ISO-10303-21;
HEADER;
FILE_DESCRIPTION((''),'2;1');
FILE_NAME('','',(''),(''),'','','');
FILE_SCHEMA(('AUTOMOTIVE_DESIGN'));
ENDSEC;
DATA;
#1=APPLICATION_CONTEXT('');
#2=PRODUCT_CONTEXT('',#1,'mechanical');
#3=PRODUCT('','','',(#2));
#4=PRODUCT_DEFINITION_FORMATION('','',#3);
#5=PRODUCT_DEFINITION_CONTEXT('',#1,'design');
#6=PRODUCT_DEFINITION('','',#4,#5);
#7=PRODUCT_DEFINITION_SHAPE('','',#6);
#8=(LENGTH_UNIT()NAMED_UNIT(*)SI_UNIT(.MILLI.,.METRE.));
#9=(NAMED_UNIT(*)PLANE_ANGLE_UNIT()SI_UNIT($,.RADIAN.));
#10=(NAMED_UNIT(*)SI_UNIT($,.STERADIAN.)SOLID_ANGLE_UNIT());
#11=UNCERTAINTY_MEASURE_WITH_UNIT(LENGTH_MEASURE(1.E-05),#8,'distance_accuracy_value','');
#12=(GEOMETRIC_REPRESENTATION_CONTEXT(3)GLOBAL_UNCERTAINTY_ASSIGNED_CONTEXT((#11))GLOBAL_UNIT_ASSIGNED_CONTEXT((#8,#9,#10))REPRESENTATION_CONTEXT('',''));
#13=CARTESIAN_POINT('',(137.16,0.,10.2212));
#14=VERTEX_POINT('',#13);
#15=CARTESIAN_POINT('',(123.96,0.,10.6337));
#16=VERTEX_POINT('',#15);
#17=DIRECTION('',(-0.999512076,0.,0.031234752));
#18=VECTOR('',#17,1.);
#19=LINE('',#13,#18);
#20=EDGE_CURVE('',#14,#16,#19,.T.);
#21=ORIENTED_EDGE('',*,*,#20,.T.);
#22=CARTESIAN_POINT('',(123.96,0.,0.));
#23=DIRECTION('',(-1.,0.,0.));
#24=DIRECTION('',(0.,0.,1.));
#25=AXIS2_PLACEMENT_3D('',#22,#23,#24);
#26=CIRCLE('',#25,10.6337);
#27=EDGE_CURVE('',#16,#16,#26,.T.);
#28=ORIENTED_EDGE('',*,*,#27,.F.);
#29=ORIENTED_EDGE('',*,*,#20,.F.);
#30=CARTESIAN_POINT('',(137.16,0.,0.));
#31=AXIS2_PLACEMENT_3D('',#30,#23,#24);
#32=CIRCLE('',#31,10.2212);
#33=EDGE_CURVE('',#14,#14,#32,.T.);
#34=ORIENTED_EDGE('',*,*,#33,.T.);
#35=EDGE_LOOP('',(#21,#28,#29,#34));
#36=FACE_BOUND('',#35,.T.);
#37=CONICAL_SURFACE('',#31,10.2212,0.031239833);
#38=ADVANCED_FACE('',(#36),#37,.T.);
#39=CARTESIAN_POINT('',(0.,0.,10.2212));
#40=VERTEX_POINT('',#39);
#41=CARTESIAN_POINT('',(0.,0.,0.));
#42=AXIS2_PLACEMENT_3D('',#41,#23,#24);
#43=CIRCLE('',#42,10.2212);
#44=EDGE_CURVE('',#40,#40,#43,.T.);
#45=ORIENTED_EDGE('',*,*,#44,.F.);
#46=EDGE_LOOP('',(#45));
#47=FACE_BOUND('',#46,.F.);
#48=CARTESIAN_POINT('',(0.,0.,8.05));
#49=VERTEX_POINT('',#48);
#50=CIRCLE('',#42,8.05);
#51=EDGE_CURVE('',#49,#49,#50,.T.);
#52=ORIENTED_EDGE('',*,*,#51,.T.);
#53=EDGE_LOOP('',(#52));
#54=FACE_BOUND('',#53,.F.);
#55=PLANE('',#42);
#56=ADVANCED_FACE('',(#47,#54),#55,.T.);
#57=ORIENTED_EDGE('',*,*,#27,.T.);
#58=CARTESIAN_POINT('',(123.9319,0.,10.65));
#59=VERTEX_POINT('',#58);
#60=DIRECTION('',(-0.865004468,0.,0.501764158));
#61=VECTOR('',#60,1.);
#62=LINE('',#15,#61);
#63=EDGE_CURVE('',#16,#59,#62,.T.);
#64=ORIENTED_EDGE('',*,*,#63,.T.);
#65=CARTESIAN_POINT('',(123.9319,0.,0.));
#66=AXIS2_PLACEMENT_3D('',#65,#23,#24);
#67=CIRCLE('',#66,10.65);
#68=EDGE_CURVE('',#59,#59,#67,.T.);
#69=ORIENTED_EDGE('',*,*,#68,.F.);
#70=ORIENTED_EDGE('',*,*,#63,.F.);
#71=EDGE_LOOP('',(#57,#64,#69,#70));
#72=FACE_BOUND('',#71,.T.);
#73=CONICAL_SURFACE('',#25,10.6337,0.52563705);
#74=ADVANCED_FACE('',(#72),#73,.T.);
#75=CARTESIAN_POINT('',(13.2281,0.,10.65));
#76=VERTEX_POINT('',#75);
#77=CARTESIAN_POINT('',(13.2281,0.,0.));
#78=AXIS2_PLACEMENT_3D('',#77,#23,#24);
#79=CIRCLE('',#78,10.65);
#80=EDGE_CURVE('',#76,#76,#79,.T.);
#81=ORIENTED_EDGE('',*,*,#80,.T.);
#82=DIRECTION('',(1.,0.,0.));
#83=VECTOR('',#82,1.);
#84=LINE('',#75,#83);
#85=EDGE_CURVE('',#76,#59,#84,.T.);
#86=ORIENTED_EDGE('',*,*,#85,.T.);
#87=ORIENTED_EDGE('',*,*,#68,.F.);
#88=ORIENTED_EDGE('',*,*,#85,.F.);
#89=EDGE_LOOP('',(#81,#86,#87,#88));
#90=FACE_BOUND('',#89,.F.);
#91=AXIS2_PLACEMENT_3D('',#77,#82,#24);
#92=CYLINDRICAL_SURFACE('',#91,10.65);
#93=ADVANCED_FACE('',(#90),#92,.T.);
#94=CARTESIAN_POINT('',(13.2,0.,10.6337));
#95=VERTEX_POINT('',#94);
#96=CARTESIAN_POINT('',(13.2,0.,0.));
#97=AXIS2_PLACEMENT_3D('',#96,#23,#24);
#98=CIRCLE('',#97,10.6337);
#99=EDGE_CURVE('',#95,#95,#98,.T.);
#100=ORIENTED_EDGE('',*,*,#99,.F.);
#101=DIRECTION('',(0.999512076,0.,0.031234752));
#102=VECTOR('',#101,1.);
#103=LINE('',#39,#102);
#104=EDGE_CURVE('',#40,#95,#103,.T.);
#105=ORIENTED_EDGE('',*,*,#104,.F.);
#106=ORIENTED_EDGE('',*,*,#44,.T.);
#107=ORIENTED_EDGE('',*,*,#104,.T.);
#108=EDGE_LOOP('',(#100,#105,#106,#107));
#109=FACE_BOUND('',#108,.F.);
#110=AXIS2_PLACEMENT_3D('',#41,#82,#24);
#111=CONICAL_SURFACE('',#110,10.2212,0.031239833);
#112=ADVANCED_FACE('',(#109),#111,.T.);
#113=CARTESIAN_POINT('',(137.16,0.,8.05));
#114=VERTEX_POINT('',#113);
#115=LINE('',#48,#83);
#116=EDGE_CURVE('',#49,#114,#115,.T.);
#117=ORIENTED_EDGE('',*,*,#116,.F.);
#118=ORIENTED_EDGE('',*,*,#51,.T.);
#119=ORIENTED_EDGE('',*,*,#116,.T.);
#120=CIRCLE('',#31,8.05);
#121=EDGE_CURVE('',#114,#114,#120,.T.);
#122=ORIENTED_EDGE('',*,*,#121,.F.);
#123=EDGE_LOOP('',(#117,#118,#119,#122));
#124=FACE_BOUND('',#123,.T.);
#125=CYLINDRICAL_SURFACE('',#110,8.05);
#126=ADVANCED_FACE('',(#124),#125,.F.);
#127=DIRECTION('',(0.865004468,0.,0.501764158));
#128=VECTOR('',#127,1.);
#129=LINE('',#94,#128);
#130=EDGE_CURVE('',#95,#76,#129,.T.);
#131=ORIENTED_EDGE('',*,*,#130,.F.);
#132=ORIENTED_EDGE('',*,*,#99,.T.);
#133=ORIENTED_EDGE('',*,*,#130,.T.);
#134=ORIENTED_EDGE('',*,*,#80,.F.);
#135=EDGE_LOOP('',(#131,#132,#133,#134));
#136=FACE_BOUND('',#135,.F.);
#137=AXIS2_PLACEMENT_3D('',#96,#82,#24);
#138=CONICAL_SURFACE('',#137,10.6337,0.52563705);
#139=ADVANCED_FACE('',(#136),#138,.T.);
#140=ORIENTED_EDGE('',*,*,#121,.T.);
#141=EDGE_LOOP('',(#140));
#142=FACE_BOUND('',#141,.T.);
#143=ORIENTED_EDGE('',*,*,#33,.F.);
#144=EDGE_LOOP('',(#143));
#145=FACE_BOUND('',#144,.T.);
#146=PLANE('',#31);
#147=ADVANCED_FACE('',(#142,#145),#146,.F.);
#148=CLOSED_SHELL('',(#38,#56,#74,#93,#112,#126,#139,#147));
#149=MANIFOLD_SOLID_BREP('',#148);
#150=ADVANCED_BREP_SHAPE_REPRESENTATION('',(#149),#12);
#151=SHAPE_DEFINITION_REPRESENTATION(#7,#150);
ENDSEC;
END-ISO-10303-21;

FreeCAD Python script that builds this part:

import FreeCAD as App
import Part
import Sketcher
Q = App.Units.Quantity


def add_polygon(sketch, points):
    """Adds a closed chain of lines whose ends are joined by coincident constraints."""
    first, n = sketch.GeometryCount, len(points)
    for a, b in zip(points, points[1:] + points[:1]):
        sketch.addGeometry(Part.LineSegment(App.Vector(*a, 0), App.Vector(*b, 0)), False)
    for i in range(n):
        sketch.addConstraint(Sketcher.Constraint("Coincident", first + i, 2, first + (i + 1) % n, 1))

doc = App.newDocument("Part")
body = doc.addObject("PartDesign::Body", "Body")

sketch1 = body.newObject("Sketcher::SketchObject", "Sketch")
sketch1.AttachmentSupport = (doc.getObject("XZ_Plane"), [""])
sketch1.MapMode = "FlatFace"
add_polygon(sketch1, [(137.16, 8.05), (0, 8.05), (0, 10.221), (13.2, 10.634), (13.228, 10.65), (123.932, 10.65), (123.96, 10.634), (137.16, 10.221)])
sketch1.addConstraint(Sketcher.Constraint("Horizontal", 0))
sketch1.addConstraint(Sketcher.Constraint("Vertical", 1))
sketch1.addConstraint(Sketcher.Constraint("Horizontal", 4))
sketch1.addConstraint(Sketcher.Constraint("Vertical", 7))
sketch1.addConstraint(Sketcher.Constraint("PointOnObject", 0, 2, -2))
sketch1.addConstraint(Sketcher.Constraint("Horizontal", 2, 2, 5, 2))
sketch1.addConstraint(Sketcher.Constraint("Horizontal", 1, 2, 6, 2))
sketch1.addConstraint(Sketcher.Constraint("Equal", 3, 5))
sketch1.addConstraint(Sketcher.Constraint("Equal", 2, 6))
sketch1.addConstraint(Sketcher.Constraint("DistanceX", 0, 2, 0, 1, Q("5.4 in")))
sketch1.addConstraint(Sketcher.Constraint("Angle", 2, Q("1.79 deg")))
sketch1.addConstraint(Sketcher.Constraint("DistanceX", -1, 1, 2, 2, Q("13.2 mm")))
sketch1.addConstraint(Sketcher.Constraint("DistanceY", 0, 2, 3, 2, Q("2.6 mm")))
sketch1.addConstraint(Sketcher.Constraint("DistanceX", 4, 1, 4, 2, Q("110.7038 mm")))
sketch1.addConstraint(Sketcher.Constraint("DistanceY", 1, 1, 1, 2, Q("2.1712 mm")))
sketch1.addConstraint(Sketcher.Constraint("DistanceY", -1, 1, 1, 2, Q("0.4024 in")))
revolution = body.newObject("PartDesign::Revolution", "Revolution")
revolution.Profile = sketch1
revolution.ReferenceAxis = (sketch1, ["H_Axis"])
revolution.Angle = 360

doc.recompute()
